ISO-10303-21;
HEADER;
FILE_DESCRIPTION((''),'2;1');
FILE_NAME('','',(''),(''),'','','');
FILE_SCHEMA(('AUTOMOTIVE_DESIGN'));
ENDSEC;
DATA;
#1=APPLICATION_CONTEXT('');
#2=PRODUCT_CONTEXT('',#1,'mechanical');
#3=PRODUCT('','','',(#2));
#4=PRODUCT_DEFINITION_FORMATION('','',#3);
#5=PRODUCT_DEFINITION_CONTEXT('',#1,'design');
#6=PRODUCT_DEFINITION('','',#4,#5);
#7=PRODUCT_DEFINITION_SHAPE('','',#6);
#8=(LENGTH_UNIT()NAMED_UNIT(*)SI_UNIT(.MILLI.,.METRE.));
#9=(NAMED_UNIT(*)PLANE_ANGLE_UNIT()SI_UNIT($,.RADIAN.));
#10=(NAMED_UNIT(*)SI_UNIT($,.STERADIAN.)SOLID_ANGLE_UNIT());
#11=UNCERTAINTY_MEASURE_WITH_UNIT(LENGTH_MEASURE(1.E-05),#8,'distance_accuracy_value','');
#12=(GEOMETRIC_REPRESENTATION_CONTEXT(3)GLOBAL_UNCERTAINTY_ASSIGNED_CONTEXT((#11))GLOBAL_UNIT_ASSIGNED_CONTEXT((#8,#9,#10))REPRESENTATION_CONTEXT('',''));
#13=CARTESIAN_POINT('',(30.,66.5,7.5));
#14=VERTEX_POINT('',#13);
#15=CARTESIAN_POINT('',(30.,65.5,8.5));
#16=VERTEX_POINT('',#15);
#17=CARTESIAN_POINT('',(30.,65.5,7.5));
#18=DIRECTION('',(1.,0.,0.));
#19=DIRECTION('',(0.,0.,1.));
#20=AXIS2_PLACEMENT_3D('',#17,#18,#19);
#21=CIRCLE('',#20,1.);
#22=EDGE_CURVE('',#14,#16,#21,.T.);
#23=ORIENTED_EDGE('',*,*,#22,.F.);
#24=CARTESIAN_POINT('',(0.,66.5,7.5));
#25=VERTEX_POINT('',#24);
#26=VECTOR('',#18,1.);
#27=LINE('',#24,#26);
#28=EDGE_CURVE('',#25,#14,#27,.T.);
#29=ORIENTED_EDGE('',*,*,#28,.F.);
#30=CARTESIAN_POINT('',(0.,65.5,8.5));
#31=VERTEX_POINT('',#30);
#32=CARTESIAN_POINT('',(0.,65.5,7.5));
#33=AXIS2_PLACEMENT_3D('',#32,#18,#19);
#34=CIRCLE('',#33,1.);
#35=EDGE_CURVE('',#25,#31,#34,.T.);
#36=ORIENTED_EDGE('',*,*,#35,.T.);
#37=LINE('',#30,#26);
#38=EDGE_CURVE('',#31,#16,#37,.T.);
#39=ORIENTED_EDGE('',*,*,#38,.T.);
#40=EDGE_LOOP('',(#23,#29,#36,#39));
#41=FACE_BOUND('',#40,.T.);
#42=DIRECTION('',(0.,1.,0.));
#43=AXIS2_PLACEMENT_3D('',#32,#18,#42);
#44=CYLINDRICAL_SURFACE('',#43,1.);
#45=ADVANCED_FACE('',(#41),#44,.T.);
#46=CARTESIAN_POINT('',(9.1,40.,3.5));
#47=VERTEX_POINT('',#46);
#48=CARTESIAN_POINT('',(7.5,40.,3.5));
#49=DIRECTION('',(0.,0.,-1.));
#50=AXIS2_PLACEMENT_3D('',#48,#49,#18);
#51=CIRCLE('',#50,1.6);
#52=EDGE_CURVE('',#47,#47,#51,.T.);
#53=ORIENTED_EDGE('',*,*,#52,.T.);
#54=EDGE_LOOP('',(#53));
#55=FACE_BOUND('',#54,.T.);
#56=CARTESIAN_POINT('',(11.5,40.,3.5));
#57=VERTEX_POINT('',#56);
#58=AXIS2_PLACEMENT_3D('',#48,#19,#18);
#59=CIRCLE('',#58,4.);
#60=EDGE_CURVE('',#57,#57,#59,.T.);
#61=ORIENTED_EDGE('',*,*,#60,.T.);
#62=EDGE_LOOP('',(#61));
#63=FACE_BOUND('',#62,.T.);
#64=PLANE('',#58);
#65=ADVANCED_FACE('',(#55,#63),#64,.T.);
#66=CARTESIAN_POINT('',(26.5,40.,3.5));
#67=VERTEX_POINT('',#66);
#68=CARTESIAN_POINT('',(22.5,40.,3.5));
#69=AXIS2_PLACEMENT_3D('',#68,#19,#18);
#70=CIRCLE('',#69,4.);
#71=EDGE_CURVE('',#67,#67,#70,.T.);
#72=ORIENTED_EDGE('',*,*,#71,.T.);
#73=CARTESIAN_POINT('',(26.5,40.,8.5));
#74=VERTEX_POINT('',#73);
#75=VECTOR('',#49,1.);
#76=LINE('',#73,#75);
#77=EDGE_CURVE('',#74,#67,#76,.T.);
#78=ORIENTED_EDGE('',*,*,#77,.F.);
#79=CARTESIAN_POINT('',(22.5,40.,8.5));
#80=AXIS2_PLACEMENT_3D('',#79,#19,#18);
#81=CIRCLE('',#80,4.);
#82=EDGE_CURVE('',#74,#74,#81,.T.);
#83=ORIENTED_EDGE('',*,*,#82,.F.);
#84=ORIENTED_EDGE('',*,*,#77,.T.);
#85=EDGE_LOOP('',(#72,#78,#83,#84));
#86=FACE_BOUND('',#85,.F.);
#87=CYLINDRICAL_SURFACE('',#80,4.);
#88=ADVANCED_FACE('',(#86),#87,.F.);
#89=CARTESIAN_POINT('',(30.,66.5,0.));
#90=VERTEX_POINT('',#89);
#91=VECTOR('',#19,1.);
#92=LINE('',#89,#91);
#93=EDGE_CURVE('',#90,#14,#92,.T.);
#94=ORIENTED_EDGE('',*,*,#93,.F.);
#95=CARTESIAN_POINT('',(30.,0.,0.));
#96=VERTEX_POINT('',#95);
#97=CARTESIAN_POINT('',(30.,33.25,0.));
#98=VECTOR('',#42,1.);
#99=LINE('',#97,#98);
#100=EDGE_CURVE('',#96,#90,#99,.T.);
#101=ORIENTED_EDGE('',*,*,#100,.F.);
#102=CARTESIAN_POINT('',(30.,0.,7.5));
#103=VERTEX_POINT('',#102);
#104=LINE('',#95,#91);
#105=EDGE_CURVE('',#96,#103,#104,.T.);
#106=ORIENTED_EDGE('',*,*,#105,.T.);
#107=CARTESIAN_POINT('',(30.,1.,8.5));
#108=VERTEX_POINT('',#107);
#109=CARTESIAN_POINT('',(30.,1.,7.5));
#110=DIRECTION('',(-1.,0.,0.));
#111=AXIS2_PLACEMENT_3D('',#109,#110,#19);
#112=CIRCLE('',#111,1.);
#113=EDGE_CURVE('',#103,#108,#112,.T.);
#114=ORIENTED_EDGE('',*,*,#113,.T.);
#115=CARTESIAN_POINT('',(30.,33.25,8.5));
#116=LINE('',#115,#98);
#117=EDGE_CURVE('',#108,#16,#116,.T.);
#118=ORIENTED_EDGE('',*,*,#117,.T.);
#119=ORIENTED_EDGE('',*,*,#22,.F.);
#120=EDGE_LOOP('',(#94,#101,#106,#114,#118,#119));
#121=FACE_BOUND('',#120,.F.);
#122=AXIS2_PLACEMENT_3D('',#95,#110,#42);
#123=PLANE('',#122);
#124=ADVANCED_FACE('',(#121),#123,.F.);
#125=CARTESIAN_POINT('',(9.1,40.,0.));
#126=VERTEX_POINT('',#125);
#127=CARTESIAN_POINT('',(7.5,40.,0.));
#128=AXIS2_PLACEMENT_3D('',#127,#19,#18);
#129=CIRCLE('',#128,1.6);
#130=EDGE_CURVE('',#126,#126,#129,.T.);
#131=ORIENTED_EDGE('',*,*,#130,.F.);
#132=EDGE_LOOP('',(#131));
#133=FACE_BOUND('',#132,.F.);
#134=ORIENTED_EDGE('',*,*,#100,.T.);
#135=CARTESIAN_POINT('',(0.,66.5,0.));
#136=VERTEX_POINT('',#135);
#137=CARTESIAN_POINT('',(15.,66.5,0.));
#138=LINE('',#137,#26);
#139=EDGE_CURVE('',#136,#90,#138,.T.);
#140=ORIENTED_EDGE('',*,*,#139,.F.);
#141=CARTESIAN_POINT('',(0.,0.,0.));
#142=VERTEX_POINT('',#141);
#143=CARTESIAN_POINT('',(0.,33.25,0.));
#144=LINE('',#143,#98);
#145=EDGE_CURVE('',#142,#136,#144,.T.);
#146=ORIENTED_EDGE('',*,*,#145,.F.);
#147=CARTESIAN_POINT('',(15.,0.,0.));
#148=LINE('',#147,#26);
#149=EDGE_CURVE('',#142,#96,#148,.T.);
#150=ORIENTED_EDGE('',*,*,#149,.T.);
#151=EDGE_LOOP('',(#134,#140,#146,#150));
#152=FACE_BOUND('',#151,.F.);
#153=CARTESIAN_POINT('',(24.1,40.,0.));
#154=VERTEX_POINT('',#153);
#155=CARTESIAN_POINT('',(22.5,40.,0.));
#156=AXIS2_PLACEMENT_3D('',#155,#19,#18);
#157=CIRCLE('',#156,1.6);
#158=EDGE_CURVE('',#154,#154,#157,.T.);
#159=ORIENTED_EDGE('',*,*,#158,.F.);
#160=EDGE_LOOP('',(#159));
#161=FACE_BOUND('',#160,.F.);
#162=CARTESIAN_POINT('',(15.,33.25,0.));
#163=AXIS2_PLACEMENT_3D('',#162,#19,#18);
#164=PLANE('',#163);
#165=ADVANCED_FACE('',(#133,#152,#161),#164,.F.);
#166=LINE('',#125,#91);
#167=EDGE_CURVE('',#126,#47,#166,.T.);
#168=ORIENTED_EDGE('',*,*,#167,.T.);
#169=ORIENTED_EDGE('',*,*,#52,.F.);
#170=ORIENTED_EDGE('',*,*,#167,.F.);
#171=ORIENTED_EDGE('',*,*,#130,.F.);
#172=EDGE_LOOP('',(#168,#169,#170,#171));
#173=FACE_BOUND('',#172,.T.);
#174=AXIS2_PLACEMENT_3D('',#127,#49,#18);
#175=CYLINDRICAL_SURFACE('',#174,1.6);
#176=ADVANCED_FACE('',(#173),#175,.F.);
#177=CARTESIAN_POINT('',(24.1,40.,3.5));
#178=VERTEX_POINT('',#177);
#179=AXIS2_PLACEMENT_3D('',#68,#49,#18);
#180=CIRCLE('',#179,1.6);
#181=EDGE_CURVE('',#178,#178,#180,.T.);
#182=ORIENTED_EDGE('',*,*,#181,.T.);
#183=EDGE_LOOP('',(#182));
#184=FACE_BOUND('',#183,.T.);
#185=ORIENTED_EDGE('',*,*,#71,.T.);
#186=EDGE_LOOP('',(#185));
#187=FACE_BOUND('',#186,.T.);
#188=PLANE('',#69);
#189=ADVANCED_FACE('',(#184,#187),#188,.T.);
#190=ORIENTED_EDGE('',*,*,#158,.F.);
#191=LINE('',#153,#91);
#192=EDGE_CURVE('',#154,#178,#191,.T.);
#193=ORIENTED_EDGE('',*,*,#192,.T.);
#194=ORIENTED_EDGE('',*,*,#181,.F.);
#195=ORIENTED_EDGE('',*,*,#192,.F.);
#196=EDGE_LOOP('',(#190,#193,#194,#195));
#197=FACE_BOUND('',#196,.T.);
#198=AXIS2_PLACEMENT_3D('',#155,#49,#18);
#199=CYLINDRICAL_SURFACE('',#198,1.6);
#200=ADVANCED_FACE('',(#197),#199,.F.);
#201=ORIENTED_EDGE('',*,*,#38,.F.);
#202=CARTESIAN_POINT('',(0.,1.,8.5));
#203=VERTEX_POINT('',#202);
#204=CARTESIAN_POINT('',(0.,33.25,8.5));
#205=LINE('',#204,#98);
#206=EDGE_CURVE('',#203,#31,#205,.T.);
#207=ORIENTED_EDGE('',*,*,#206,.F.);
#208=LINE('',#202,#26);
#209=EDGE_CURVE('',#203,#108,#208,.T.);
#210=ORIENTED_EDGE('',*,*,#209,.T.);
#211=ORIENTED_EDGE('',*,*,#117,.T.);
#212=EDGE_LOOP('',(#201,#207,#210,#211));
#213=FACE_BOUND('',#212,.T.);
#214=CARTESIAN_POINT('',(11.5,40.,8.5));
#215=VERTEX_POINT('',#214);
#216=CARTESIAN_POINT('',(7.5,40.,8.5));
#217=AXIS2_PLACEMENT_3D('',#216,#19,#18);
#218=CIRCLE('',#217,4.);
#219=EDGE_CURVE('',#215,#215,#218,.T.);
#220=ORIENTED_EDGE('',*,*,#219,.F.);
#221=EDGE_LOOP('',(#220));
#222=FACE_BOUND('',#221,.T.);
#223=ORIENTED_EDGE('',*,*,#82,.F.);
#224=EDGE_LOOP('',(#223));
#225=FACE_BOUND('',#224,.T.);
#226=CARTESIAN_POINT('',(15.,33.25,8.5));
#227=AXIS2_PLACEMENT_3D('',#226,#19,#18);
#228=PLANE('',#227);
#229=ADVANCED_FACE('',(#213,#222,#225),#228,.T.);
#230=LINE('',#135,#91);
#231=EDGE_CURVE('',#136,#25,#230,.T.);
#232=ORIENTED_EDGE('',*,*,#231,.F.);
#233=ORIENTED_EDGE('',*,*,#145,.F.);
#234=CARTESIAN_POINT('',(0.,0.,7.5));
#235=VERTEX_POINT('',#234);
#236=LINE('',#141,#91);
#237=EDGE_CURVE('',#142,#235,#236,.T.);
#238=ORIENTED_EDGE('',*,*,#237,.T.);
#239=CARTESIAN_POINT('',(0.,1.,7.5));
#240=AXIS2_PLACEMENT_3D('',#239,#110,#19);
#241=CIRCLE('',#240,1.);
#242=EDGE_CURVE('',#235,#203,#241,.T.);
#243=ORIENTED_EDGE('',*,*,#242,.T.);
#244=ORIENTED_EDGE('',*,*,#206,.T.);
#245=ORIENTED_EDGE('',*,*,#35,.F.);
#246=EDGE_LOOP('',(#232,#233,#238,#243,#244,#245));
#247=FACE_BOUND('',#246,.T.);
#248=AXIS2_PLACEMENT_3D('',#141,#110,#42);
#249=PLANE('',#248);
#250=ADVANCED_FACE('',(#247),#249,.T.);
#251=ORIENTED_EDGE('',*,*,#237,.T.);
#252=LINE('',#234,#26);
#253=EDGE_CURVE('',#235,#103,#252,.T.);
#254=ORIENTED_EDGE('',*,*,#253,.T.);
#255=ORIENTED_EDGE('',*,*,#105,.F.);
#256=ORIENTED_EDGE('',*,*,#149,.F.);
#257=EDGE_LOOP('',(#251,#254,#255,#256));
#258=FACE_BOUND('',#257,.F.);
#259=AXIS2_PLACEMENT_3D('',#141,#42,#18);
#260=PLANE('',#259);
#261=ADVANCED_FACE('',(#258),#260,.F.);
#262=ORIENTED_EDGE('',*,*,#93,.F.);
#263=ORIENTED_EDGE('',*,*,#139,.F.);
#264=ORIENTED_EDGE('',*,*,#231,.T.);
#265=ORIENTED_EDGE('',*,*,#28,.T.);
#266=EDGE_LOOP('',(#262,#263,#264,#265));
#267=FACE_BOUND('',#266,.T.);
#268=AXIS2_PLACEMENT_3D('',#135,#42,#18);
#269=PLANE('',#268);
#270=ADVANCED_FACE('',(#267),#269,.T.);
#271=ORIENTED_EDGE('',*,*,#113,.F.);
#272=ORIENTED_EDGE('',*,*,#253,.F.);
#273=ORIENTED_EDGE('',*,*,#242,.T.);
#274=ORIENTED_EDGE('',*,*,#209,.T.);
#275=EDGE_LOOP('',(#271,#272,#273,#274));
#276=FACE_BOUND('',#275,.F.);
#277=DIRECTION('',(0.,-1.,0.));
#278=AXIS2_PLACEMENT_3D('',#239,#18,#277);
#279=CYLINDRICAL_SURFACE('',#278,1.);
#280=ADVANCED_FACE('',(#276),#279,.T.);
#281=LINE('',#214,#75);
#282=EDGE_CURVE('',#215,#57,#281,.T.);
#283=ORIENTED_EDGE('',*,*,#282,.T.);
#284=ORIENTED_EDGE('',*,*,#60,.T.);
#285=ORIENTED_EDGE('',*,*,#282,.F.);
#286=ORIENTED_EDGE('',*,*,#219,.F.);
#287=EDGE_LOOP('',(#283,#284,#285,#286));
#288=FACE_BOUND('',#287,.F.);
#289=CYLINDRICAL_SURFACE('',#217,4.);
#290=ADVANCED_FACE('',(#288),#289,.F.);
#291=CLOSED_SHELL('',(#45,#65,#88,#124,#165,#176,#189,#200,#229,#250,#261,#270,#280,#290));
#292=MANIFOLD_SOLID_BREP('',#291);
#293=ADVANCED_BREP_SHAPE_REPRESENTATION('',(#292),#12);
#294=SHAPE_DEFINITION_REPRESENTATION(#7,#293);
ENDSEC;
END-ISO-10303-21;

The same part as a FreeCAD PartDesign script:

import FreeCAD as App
import Part
import Sketcher

V = App.Vector


def edges_at(feature, points):
    """Names of the edges that pass closest to the given points."""
    edges = feature.Shape.Edges
    near = lambda p: min(range(len(edges)), key=lambda i: edges[i].distToShape(Part.Vertex(*p))[0])
    return sorted({f"Edge{near(p) + 1}" for p in points})


def add_polygon(sketch, points):
    """Adds a closed chain of lines whose ends are joined by coincident constraints."""
    first, n = sketch.GeometryCount, len(points)
    for a, b in zip(points, points[1:] + points[:1]):
        sketch.addGeometry(Part.LineSegment(App.Vector(*a, 0), App.Vector(*b, 0)), False)
    for i in range(n):
        sketch.addConstraint(Sketcher.Constraint("Coincident", first + i, 2, first + (i + 1) % n, 1))

doc = App.newDocument("Part")
params = doc.addObject("Spreadsheet::Sheet", "Params")
for row, (alias, value) in enumerate([
    ("sketch1_diameter", "3.2 mm"),
    ("sketch1_width", "30 mm"),
    ("sketch1_height", "66.5 mm"),
    ("pad1_length", "8.5 mm"),
    ("sketch2_diameter", "8 mm"),
    ("pocket1_length", "5 mm"),
    ("fillet_radius", "1 mm"),
], start=1):
    params.set(f"A{row}", alias)
    params.set(f"B{row}", "=" + value)
    params.setAlias(f"B{row}", alias)

body = doc.addObject("PartDesign::Body", "Body")

sketch1 = doc.addObject("Sketcher::SketchObject", "Sketch")
body.addObject(sketch1)
sketch1.AttachmentSupport = (doc.XY_Plane, [""])
sketch1.MapMode = "FlatFace"
add_polygon(sketch1, [(0, 66.5), (0, 0), (30, 0), (30, 66.5)])
sketch1.addGeometry(Part.Circle(V(7.5, 40, 0), V(0, 0, 1), 1.6), False)
sketch1.addGeometry(Part.Circle(V(22.5, 40, 0), V(0, 0, 1), 1.6), False)
sketch1.addConstraint([
    Sketcher.Constraint("Vertical", 0),
    Sketcher.Constraint("Horizontal", 1),
    Sketcher.Constraint("Vertical", 2),
    Sketcher.Constraint("Horizontal", 3),
    Sketcher.Constraint("Coincident", 0, 2, -1, 1),
    Sketcher.Constraint("Equal", 4, 5),
    Sketcher.Constraint("Horizontal", 4, 3, 5, 3),
    Sketcher.Constraint("Diameter", 4, 3.2),
    Sketcher.Constraint("DistanceX", 1, 1, 1, 2, 30.0),
    Sketcher.Constraint("DistanceY", 0, 2, 0, 1, 66.5),
    Sketcher.Constraint("DistanceY", -1, 1, 4, 3, 40.0),
    Sketcher.Constraint("DistanceX", 4, 3, 5, 3, 15.0),
    Sketcher.Constraint("DistanceX", -1, 1, 4, 3, 7.5),
])
sketch1.setExpression("Constraints[11]", "Params.sketch1_diameter")
sketch1.setExpression("Constraints[12]", "Params.sketch1_width")
sketch1.setExpression("Constraints[13]", "Params.sketch1_height")
pad1 = doc.addObject("PartDesign::Pad", "Pad")
body.addObject(pad1)
pad1.Profile = sketch1
pad1.setExpression("Length", "Params.pad1_length")

sketch2 = doc.addObject("Sketcher::SketchObject", "Sketch001")
body.addObject(sketch2)
sketch2.AttachmentSupport = (doc.XY_Plane, [""])
sketch2.MapMode = "FlatFace"
sketch2.AttachmentOffset = App.Placement(V(0, 0, 8.5), App.Rotation())
sketch2.addGeometry([
    Part.Circle(V(7.5, 40, 0), V(0, 0, 1), 4),
    Part.Circle(V(22.5, 40, 0), V(0, 0, 1), 4),
], False)
sketch2.addConstraint([
    Sketcher.Constraint("Equal", 0, 1),
    Sketcher.Constraint("Horizontal", 0, 3, 1, 3),
    Sketcher.Constraint("Diameter", 0, 8.0),
    Sketcher.Constraint("DistanceY", -1, 1, 0, 3, 40.0),
    Sketcher.Constraint("DistanceX", 0, 3, 1, 3, 15.0),
    Sketcher.Constraint("DistanceX", -1, 1, 0, 3, 7.5),
])
sketch2.setExpression("Constraints[2]", "Params.sketch2_diameter")
pocket1 = doc.addObject("PartDesign::Pocket", "Pocket")
body.addObject(pocket1)
pocket1.Profile = sketch2
pocket1.setExpression("Length", "Params.pocket1_length")
doc.recompute()

fillet = doc.addObject("PartDesign::Fillet", "Fillet")
body.addObject(fillet)
fillet.Base = (pocket1, edges_at(pocket1, [(15, 66.5, 8.5), (15, 0, 8.5)]))
fillet.setExpression("Radius", "Params.fillet_radius")

doc.recompute()
